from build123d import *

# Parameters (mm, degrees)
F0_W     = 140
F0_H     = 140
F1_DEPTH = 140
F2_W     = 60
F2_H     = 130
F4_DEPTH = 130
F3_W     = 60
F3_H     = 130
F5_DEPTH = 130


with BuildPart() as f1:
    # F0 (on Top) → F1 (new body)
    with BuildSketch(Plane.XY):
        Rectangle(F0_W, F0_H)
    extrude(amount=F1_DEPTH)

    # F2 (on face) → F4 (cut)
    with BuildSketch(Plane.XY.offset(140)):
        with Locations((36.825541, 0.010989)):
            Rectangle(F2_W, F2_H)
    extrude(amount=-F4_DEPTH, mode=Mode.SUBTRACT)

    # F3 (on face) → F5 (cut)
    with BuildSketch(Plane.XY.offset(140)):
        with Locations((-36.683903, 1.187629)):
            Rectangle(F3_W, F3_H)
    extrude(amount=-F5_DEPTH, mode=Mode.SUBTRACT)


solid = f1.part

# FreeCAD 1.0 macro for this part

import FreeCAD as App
import Part
import Sketcher
Q = App.Units.Quantity


def add_polygon(sketch, points):
    """Adds a closed chain of lines whose ends are joined by coincident constraints."""
    first, n = sketch.GeometryCount, len(points)
    for a, b in zip(points, points[1:] + points[:1]):
        sketch.addGeometry(Part.LineSegment(App.Vector(*a, 0), App.Vector(*b, 0)), False)
    for i in range(n):
        sketch.addConstraint(Sketcher.Constraint("Coincident", first + i, 2, first + (i + 1) % n, 1))

doc = App.newDocument("Part")
params = doc.addObject("Spreadsheet::Sheet", "Params")
for row, (alias, value) in enumerate([
    ("sketch1_width", "140 mm"),
    ("pad1_length", "140 mm"),
    ("sketch2_width", "60 mm"),
    ("sketch2_height", "130 mm"),
    ("pocket1_length", "130 mm"),
    ("sketch3_width", "60 mm"),
    ("sketch3_height", "130 mm"),
    ("pocket2_length", "130 mm"),
], start=1):
    params.set(f"A{row}", alias)
    params.set(f"B{row}", "=" + value)
    params.setAlias(f"B{row}", alias)

body = doc.addObject("PartDesign::Body", "Body")

# Sketch on XY plane
sketch1 = doc.addObject("Sketcher::SketchObject", "Sketch")
body.addObject(sketch1)
sketch1.AttachmentSupport = (doc.XY_Plane, [""])
sketch1.MapMode = "FlatFace"
add_polygon(sketch1, [(-70, 70), (-70, -70), (70, -70), (70, 70)])  # lines 0-3
sketch1.addConstraint([
    Sketcher.Constraint("Vertical", 0),
    Sketcher.Constraint("Horizontal", 1),
    Sketcher.Constraint("Vertical", 2),
    Sketcher.Constraint("Horizontal", 3),
    Sketcher.Constraint("Symmetric", 0, 2, 2, 2, -1, 1),
    Sketcher.Constraint("Equal", 3, 0),
    Sketcher.Constraint("DistanceX", 1, 1, 1, 2, Q("140 mm")),
])
sketch1.setExpression("Constraints[10]", "Params.sketch1_width")
pad1 = doc.addObject("PartDesign::Pad", "Pad")
body.addObject(pad1)
pad1.Profile = sketch1
pad1.setExpression("Length", "Params.pad1_length")

# Sketch on XY plane
sketch2 = doc.addObject("Sketcher::SketchObject", "Sketch001")
body.addObject(sketch2)
sketch2.AttachmentSupport = (doc.XY_Plane, [""])
sketch2.MapMode = "FlatFace"
sketch2.AttachmentOffset = App.Placement(App.Vector(0, 0, 140), App.Rotation())
add_polygon(sketch2, [(7, 65), (7, -65), (67, -65), (67, 65)])  # lines 0-3
sketch2.addConstraint([
    Sketcher.Constraint("Vertical", 0),
    Sketcher.Constraint("Horizontal", 1),
    Sketcher.Constraint("Vertical", 2),
    Sketcher.Constraint("Horizontal", 3),
    Sketcher.Constraint("DistanceX", 1, 1, 1, 2, Q("60 mm")),
    Sketcher.Constraint("DistanceY", 0, 2, 0, 1, Q("130 mm")),
    Sketcher.Constraint("DistanceX", -1, 1, 0, 2, Q("6.825541 mm")),
    Sketcher.Constraint("DistanceY", 0, 2, -1, 1, Q("64.989011 mm")),
])
sketch2.setExpression("Constraints[8]", "Params.sketch2_width")
sketch2.setExpression("Constraints[9]", "Params.sketch2_height")
pocket1 = doc.addObject("PartDesign::Pocket", "Pocket")
body.addObject(pocket1)
pocket1.Profile = sketch2
pocket1.setExpression("Length", "Params.pocket1_length")

# Sketch on XY plane
sketch3 = doc.addObject("Sketcher::SketchObject", "Sketch002")
body.addObject(sketch3)
sketch3.AttachmentSupport = (doc.XY_Plane, [""])
sketch3.MapMode = "FlatFace"
sketch3.AttachmentOffset = App.Placement(App.Vector(0, 0, 140), App.Rotation())
add_polygon(sketch3, [(-67, 66), (-67, -64), (-7, -64), (-7, 66)])  # lines 0-3
sketch3.addConstraint([
    Sketcher.Constraint("Vertical", 0),
    Sketcher.Constraint("Horizontal", 1),
    Sketcher.Constraint("Vertical", 2),
    Sketcher.Constraint("Horizontal", 3),
    Sketcher.Constraint("DistanceX", 1, 1, 1, 2, Q("60 mm")),
    Sketcher.Constraint("DistanceY", 0, 2, 0, 1, Q("130 mm")),
    Sketcher.Constraint("DistanceY", 0, 2, -1, 1, Q("63.812371 mm")),
    Sketcher.Constraint("DistanceX", 0, 2, -1, 1, Q("66.683903 mm")),
])
sketch3.setExpression("Constraints[8]", "Params.sketch3_width")
sketch3.setExpression("Constraints[9]", "Params.sketch3_height")
pocket2 = doc.addObject("PartDesign::Pocket", "Pocket001")
body.addObject(pocket2)
pocket2.Profile = sketch3
pocket2.setExpression("Length", "Params.pocket2_length")

doc.recompute()
